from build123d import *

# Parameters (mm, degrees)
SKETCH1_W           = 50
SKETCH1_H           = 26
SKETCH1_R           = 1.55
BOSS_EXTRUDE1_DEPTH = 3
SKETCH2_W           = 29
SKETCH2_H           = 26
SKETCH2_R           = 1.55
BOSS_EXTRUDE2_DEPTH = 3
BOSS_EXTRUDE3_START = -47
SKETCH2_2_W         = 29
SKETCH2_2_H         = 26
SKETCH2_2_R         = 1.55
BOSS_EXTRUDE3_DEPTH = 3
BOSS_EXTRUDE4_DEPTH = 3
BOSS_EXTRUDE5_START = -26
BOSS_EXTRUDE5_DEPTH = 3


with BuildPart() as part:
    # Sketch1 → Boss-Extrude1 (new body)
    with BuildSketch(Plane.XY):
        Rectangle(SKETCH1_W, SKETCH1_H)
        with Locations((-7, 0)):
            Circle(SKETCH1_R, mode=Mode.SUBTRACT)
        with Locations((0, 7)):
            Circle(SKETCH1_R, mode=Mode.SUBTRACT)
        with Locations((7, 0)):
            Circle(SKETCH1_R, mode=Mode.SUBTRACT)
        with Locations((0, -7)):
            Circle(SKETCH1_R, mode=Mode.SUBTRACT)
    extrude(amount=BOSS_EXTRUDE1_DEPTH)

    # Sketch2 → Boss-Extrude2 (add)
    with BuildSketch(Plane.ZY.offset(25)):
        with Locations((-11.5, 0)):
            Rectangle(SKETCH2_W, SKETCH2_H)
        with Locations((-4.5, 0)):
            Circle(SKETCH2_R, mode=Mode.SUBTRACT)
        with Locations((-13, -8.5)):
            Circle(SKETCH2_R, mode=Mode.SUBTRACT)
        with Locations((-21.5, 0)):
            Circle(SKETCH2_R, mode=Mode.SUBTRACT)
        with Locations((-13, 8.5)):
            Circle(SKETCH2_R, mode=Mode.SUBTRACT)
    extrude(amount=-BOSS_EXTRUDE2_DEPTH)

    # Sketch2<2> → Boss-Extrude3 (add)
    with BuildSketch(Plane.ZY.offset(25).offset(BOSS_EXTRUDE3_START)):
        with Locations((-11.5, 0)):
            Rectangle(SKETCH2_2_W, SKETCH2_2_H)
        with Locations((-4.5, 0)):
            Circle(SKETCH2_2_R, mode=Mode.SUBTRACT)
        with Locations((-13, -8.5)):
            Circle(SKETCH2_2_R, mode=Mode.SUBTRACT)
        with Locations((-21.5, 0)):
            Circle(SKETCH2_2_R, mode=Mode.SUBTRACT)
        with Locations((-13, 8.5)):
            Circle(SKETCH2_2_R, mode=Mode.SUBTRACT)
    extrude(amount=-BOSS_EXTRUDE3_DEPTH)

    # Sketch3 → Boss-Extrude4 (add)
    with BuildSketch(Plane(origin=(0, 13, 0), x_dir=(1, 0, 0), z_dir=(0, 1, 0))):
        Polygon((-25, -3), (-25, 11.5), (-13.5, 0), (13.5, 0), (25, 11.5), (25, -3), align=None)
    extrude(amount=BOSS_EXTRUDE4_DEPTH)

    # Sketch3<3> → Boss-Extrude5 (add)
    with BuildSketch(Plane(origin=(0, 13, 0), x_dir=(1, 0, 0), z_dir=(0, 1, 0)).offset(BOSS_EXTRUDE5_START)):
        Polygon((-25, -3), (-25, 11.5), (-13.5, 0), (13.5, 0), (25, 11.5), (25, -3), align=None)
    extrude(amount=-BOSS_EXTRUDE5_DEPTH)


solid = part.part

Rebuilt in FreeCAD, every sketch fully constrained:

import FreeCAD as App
import Part
import Sketcher
from FreeCAD import Vector
Q = App.Units.Quantity


def add_polygon(sketch, points):
    """Adds a closed chain of lines whose ends are joined by coincident constraints."""
    first, n = sketch.GeometryCount, len(points)
    for a, b in zip(points, points[1:] + points[:1]):
        sketch.addGeometry(Part.LineSegment(App.Vector(*a, 0), App.Vector(*b, 0)), False)
    for i in range(n):
        sketch.addConstraint(Sketcher.Constraint("Coincident", first + i, 2, first + (i + 1) % n, 1))

doc = App.newDocument("Part")
body = doc.addObject("PartDesign::Body", "Body")

sketch1 = doc.addObject("Sketcher::SketchObject", "Sketch")
body.addObject(sketch1)
sketch1.AttachmentSupport = (doc.XY_Plane, [""])
sketch1.MapMode = "FlatFace"
add_polygon(sketch1, [(-25, 13), (-25, -13), (25, -13), (25, 13)])
sketch1.addGeometry(Part.Circle(Vector(0, -7, 0), Vector(0, 0, 1), 1.55), False)
sketch1.addGeometry(Part.Circle(Vector(-7, 0, 0), Vector(0, 0, 1), 1.55), False)
sketch1.addGeometry(Part.Circle(Vector(7, 0, 0), Vector(0, 0, 1), 1.55), False)
sketch1.addGeometry(Part.Circle(Vector(0, 7, 0), Vector(0, 0, 1), 1.55), False)
sketch1.addConstraint([
    Sketcher.Constraint("Vertical", 0),
    Sketcher.Constraint("Horizontal", 1),
    Sketcher.Constraint("Vertical", 2),
    Sketcher.Constraint("Horizontal", 3),
    Sketcher.Constraint("Equal", 4, 5),
    Sketcher.Constraint("Equal", 5, 6),
    Sketcher.Constraint("Equal", 6, 7),
    Sketcher.Constraint("Symmetric", 5, 3, 6, 3, -1, 1),
    Sketcher.Constraint("Symmetric", 4, 3, 7, 3, -1, 1),
    Sketcher.Constraint("Symmetric", 0, 2, 2, 2, -1, 1),
    Sketcher.Constraint("PointOnObject", 4, 3, -2),
    Sketcher.Constraint("PointOnObject", 5, 3, -1),
    Sketcher.Constraint("Diameter", 4, Q("3.1 mm")),
    Sketcher.Constraint("DistanceX", 1, 1, 1, 2, Q("50 mm")),
    Sketcher.Constraint("DistanceY", 0, 2, 0, 1, Q("26 mm")),
    Sketcher.Constraint("DistanceY", 4, 3, -1, 1, Q("7 mm")),
    Sketcher.Constraint("DistanceX", 5, 3, -1, 1, Q("7 mm")),
])
pad1 = doc.addObject("PartDesign::Pad", "Pad")
body.addObject(pad1)
pad1.Profile = sketch1
pad1.Length = 3

sketch2 = doc.addObject("Sketcher::SketchObject", "Sketch001")
body.addObject(sketch2)
sketch2.AttachmentSupport = (doc.YZ_Plane, [""])
sketch2.MapMode = "FlatFace"
sketch2.AttachmentOffset = App.Placement(Vector(0, 0, -25), App.Rotation())
add_polygon(sketch2, [(13, -26), (-13, -26), (-13, 3), (13, 3)])
sketch2.addGeometry(Part.Circle(Vector(-8.5, -13, 0), Vector(0, 0, 1), 1.55), False)
sketch2.addGeometry(Part.Circle(Vector(0, -21.5, 0), Vector(0, 0, 1), 1.55), False)
sketch2.addGeometry(Part.Circle(Vector(0, -4.5, 0), Vector(0, 0, 1), 1.55), False)
sketch2.addGeometry(Part.Circle(Vector(8.5, -13, 0), Vector(0, 0, 1), 1.55), False)
sketch2.addConstraint([
    Sketcher.Constraint("Horizontal", 0),
    Sketcher.Constraint("Vertical", 1),
    Sketcher.Constraint("Horizontal", 2),
    Sketcher.Constraint("Vertical", 3),
    Sketcher.Constraint("Equal", 4, 5),
    Sketcher.Constraint("Equal", 5, 6),
    Sketcher.Constraint("Equal", 6, 7),
    Sketcher.Constraint("Symmetric", 4, 3, 7, 3, -2),
    Sketcher.Constraint("PointOnObject", 5, 3, -2),
    Sketcher.Constraint("PointOnObject", 6, 3, -2),
    Sketcher.Constraint("Diameter", 4, Q("3.1 mm")),
    Sketcher.Constraint("DistanceX", 0, 2, 0, 1, Q("26 mm")),
    Sketcher.Constraint("DistanceY", 1, 1, 1, 2, Q("29 mm")),
    Sketcher.Constraint("DistanceY", 4, 3, -1, 1, Q("13 mm")),
    Sketcher.Constraint("DistanceX", 0, 2, -1, 1, Q("13 mm")),
    Sketcher.Constraint("DistanceY", 0, 2, -1, 1, Q("26 mm")),
    Sketcher.Constraint("DistanceY", 5, 3, 6, 3, Q("17 mm")),
    Sketcher.Constraint("DistanceX", 4, 3, 7, 3, Q("17 mm")),
    Sketcher.Constraint("DistanceY", 5, 3, -1, 1, Q("21.5 mm")),
])
pad2 = doc.addObject("PartDesign::Pad", "Pad001")
body.addObject(pad2)
pad2.Profile = sketch2
pad2.Length = 3

sketch3 = doc.addObject("Sketcher::SketchObject", "Sketch002")
body.addObject(sketch3)
sketch3.AttachmentSupport = (doc.YZ_Plane, [""])
sketch3.MapMode = "FlatFace"
sketch3.AttachmentOffset = App.Placement(Vector(0, 0, 22), App.Rotation())
add_polygon(sketch3, [(13, -26), (-13, -26), (-13, 3), (13, 3)])
sketch3.addGeometry(Part.Circle(Vector(-8.5, -13, 0), Vector(0, 0, 1), 1.55), False)
sketch3.addGeometry(Part.Circle(Vector(0, -21.5, 0), Vector(0, 0, 1), 1.55), False)
sketch3.addGeometry(Part.Circle(Vector(0, -4.5, 0), Vector(0, 0, 1), 1.55), False)
sketch3.addGeometry(Part.Circle(Vector(8.5, -13, 0), Vector(0, 0, 1), 1.55), False)
sketch3.addConstraint([
    Sketcher.Constraint("Horizontal", 0),
    Sketcher.Constraint("Vertical", 1),
    Sketcher.Constraint("Horizontal", 2),
    Sketcher.Constraint("Vertical", 3),
    Sketcher.Constraint("Equal", 4, 5),
    Sketcher.Constraint("Equal", 5, 6),
    Sketcher.Constraint("Equal", 6, 7),
    Sketcher.Constraint("Symmetric", 4, 3, 7, 3, -2),
    Sketcher.Constraint("PointOnObject", 5, 3, -2),
    Sketcher.Constraint("PointOnObject", 6, 3, -2),
    Sketcher.Constraint("Diameter", 4, Q("3.1 mm")),
    Sketcher.Constraint("DistanceX", 0, 2, 0, 1, Q("26 mm")),
    Sketcher.Constraint("DistanceY", 1, 1, 1, 2, Q("29 mm")),
    Sketcher.Constraint("DistanceY", 4, 3, -1, 1, Q("13 mm")),
    Sketcher.Constraint("DistanceX", 0, 2, -1, 1, Q("13 mm")),
    Sketcher.Constraint("DistanceY", 0, 2, -1, 1, Q("26 mm")),
    Sketcher.Constraint("DistanceY", 5, 3, 6, 3, Q("17 mm")),
    Sketcher.Constraint("DistanceX", 4, 3, 7, 3, Q("17 mm")),
    Sketcher.Constraint("DistanceY", 5, 3, -1, 1, Q("21.5 mm")),
])
pad3 = doc.addObject("PartDesign::Pad", "Pad002")
body.addObject(pad3)
pad3.Profile = sketch3
pad3.Length = 3

sketch4 = doc.addObject("Sketcher::SketchObject", "Sketch003")
body.addObject(sketch4)
sketch4.AttachmentSupport = (doc.XZ_Plane, [""])
sketch4.MapMode = "FlatFace"
sketch4.AttachmentOffset = App.Placement(Vector(0, 0, -13), App.Rotation())
add_polygon(sketch4, [(-25, -11.5), (-25, 3), (25, 3), (25, -11.5), (13.5, 0), (-13.5, 0)])
sketch4.addConstraint([
    Sketcher.Constraint("Vertical", 0),
    Sketcher.Constraint("Horizontal", 1),
    Sketcher.Constraint("Vertical", 2),
    Sketcher.Constraint("Horizontal", 4),
    Sketcher.Constraint("Symmetric", 3, 2, 4, 2, -1, 1),
    Sketcher.Constraint("Symmetric", 2, 2, 5, 2, -2),
    Sketcher.Constraint("Perpendicular", 3, 5),
    Sketcher.Constraint("DistanceX", 1, 1, 1, 2, Q("50 mm")),
    Sketcher.Constraint("DistanceX", 4, 2, 4, 1, Q("27 mm")),
    Sketcher.Constraint("DistanceY", 0, 1, 0, 2, Q("14.5 mm")),
])
pad4 = doc.addObject("PartDesign::Pad", "Pad003")
body.addObject(pad4)
pad4.Profile = sketch4
pad4.Length = 3
pad4.Reversed = True

sketch5 = doc.addObject("Sketcher::SketchObject", "Sketch004")
body.addObject(sketch5)
sketch5.AttachmentSupport = (doc.XZ_Plane, [""])
sketch5.MapMode = "FlatFace"
sketch5.AttachmentOffset = App.Placement(Vector(0, 0, 13), App.Rotation())
add_polygon(sketch5, [(-25, -11.5), (-25, 3), (25, 3), (25, -11.5), (13.5, 0), (-13.5, 0)])
sketch5.addConstraint([
    Sketcher.Constraint("Vertical", 0),
    Sketcher.Constraint("Horizontal", 1),
    Sketcher.Constraint("Vertical", 2),
    Sketcher.Constraint("Horizontal", 4),
    Sketcher.Constraint("Symmetric", 3, 2, 4, 2, -1, 1),
    Sketcher.Constraint("Symmetric", 2, 2, 5, 2, -2),
    Sketcher.Constraint("Perpendicular", 3, 5),
    Sketcher.Constraint("DistanceX", 1, 1, 1, 2, Q("50 mm")),
    Sketcher.Constraint("DistanceX", 4, 2, 4, 1, Q("27 mm")),
    Sketcher.Constraint("DistanceY", 0, 1, 0, 2, Q("14.5 mm")),
])
pad5 = doc.addObject("PartDesign::Pad", "Pad004")
body.addObject(pad5)
pad5.Profile = sketch5
pad5.Length = 3

doc.recompute()
